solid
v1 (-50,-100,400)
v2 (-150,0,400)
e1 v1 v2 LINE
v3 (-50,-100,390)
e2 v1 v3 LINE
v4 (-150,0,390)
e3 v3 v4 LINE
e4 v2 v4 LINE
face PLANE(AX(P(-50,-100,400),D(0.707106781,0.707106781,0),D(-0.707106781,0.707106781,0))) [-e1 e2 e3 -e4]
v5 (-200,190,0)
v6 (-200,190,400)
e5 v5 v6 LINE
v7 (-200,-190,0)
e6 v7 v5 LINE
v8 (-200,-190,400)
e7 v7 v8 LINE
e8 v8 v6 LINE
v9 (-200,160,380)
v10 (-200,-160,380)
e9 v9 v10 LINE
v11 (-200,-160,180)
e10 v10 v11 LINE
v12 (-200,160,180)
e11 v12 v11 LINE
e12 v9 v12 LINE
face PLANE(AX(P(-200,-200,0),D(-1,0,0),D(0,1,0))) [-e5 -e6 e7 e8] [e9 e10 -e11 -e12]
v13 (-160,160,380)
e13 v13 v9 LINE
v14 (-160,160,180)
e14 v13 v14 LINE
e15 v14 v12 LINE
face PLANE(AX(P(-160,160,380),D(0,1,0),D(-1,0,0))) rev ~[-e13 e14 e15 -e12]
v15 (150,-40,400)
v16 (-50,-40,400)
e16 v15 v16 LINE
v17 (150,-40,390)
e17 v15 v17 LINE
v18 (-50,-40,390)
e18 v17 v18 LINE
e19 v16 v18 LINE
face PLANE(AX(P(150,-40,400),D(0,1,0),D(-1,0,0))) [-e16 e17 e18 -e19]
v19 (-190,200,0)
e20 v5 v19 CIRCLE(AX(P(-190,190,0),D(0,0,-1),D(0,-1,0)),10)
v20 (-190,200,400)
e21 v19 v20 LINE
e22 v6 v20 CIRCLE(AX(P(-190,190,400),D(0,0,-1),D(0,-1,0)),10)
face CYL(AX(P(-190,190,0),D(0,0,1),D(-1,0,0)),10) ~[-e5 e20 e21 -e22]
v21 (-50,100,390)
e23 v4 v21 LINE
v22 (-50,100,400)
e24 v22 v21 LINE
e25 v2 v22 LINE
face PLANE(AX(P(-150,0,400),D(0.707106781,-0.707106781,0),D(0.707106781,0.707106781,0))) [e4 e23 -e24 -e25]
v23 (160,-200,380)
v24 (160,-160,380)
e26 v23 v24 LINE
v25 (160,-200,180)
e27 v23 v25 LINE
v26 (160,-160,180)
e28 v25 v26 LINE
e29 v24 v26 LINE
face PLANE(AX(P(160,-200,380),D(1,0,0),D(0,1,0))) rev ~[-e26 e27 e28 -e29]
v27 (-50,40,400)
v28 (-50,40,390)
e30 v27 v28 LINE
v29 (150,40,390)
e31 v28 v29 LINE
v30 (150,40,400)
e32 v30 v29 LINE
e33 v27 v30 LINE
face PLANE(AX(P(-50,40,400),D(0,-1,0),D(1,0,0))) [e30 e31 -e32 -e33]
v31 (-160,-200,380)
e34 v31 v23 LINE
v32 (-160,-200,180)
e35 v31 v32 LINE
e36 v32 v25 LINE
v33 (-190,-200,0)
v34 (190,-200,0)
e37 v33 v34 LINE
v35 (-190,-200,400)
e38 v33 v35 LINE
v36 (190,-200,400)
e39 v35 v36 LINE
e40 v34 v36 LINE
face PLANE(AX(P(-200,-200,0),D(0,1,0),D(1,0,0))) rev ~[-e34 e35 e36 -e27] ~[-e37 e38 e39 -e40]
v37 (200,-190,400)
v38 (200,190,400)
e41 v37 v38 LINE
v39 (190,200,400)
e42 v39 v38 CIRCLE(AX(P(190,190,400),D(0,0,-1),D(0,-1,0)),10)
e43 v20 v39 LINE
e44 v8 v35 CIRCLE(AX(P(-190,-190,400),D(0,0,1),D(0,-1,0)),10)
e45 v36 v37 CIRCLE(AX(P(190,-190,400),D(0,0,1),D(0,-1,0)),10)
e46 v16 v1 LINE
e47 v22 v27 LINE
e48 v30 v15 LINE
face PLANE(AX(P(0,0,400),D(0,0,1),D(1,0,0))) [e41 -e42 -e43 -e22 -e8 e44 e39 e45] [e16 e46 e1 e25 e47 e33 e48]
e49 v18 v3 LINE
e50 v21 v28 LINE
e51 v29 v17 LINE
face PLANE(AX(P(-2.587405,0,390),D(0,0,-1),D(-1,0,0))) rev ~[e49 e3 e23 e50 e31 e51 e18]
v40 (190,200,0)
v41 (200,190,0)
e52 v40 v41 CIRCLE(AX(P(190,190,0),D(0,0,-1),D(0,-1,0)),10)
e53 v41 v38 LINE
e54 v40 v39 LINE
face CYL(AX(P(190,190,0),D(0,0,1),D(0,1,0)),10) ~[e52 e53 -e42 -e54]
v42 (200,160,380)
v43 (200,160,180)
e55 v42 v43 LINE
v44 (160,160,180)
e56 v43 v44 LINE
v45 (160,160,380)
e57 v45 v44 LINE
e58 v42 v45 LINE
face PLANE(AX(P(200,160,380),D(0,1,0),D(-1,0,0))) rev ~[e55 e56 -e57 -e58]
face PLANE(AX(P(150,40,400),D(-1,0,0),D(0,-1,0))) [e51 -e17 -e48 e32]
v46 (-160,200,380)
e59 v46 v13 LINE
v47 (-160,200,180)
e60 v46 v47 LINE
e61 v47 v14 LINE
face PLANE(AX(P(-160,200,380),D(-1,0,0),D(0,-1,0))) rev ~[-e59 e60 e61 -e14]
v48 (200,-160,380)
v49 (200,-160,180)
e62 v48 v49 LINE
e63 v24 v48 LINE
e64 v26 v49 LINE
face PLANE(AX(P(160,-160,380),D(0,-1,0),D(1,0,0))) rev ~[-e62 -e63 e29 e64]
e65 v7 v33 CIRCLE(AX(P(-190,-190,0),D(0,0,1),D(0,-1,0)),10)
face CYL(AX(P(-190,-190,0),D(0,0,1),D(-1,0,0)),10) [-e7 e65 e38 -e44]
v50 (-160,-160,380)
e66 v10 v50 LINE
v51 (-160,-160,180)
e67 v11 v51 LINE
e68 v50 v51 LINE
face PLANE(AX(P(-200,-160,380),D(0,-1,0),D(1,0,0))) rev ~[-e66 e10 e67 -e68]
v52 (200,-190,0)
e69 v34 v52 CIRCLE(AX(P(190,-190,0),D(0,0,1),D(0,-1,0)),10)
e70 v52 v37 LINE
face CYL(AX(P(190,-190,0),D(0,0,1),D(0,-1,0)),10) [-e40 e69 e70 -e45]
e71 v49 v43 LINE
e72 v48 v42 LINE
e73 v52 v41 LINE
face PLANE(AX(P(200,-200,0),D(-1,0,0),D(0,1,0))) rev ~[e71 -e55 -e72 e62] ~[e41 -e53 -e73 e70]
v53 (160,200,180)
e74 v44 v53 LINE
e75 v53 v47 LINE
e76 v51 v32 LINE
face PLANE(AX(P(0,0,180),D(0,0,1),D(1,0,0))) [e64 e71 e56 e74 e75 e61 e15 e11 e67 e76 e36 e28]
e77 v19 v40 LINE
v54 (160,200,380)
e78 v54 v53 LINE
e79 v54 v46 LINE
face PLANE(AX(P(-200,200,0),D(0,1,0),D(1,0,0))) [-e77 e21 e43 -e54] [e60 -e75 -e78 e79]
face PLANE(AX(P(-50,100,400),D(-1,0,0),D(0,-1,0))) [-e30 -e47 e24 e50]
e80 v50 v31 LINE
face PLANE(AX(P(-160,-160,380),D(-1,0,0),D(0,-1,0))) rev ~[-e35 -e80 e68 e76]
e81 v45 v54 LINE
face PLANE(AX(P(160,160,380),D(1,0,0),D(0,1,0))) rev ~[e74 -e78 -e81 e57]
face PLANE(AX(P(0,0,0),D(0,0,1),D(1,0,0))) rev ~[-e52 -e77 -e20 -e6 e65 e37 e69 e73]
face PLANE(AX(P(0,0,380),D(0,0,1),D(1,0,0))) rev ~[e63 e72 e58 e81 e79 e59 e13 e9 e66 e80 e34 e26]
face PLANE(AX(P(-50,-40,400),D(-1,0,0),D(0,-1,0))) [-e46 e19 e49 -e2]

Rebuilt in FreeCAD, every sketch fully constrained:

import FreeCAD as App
import Part
import Sketcher
from FreeCAD import Vector
Q = App.Units.Quantity


def edges_at(feature, points):
    """Names of the edges that pass closest to the given points."""
    edges = feature.Shape.Edges
    near = lambda p: min(range(len(edges)), key=lambda i: edges[i].distToShape(Part.Vertex(*p))[0])
    return sorted({f"Edge{near(p) + 1}" for p in points})


def add_polygon(sketch, points):
    """Adds a closed chain of lines whose ends are joined by coincident constraints."""
    first, n = sketch.GeometryCount, len(points)
    for a, b in zip(points, points[1:] + points[:1]):
        sketch.addGeometry(Part.LineSegment(App.Vector(*a, 0), App.Vector(*b, 0)), False)
    for i in range(n):
        sketch.addConstraint(Sketcher.Constraint("Coincident", first + i, 2, first + (i + 1) % n, 1))

doc = App.newDocument("Part")
body = doc.addObject("PartDesign::Body", "Body")

sketch1 = body.newObject("Sketcher::SketchObject", "Sketch")
sketch1.AttachmentSupport = (doc.getObject("XY_Plane"), [""])
sketch1.MapMode = "FlatFace"
add_polygon(sketch1, [(-200, 200), (-200, -200), (200, -200), (200, 200)])
sketch1.addConstraint(Sketcher.Constraint("Vertical", 0))
sketch1.addConstraint(Sketcher.Constraint("Horizontal", 1))
sketch1.addConstraint(Sketcher.Constraint("Vertical", 2))
sketch1.addConstraint(Sketcher.Constraint("Horizontal", 3))
sketch1.addConstraint(Sketcher.Constraint("Symmetric", 0, 2, 2, 2, -1, 1))
sketch1.addConstraint(Sketcher.Constraint("Equal", 3, 0))
sketch1.addConstraint(Sketcher.Constraint("DistanceX", 1, 1, 1, 2, Q("400 mm")))
pad1 = body.newObject("PartDesign::Pad", "Pad")
pad1.Profile = sketch1
pad1.Length = 400

sketch2 = body.newObject("Sketcher::SketchObject", "Sketch001")
sketch2.AttachmentSupport = (doc.getObject("XY_Plane"), [""])
sketch2.MapMode = "FlatFace"
sketch2.AttachmentOffset = App.Placement(Vector(0, 0, 380), App.Rotation())
add_polygon(sketch2, [(160, 200), (-160, 200), (-160, 160), (-200, 160), (-200, -160), (-160, -160), (-160, -200), (160, -200), (160, -160), (200, -160), (200, 160), (160, 160)])
sketch2.addConstraint(Sketcher.Constraint("Horizontal", 0))
sketch2.addConstraint(Sketcher.Constraint("Vertical", 1))
sketch2.addConstraint(Sketcher.Constraint("Horizontal", 2))
sketch2.addConstraint(Sketcher.Constraint("Vertical", 3))
sketch2.addConstraint(Sketcher.Constraint("Horizontal", 4))
sketch2.addConstraint(Sketcher.Constraint("Vertical", 5))
sketch2.addConstraint(Sketcher.Constraint("Horizontal", 6))
sketch2.addConstraint(Sketcher.Constraint("Vertical", 7))
sketch2.addConstraint(Sketcher.Constraint("Horizontal", 8))
sketch2.addConstraint(Sketcher.Constraint("Vertical", 9))
sketch2.addConstraint(Sketcher.Constraint("Horizontal", 10))
sketch2.addConstraint(Sketcher.Constraint("Vertical", 11))
sketch2.addConstraint(Sketcher.Constraint("Symmetric", 0, 2, 6, 2, -1, 1))
sketch2.addConstraint(Sketcher.Constraint("Symmetric", 2, 2, 8, 2, -1, 1))
sketch2.addConstraint(Sketcher.Constraint("Symmetric", 4, 2, 10, 2, -1, 1))
sketch2.addConstraint(Sketcher.Constraint("Symmetric", 4, 2, 7, 2, -2))
sketch2.addConstraint(Sketcher.Constraint("Equal", 10, 1))
sketch2.addConstraint(Sketcher.Constraint("Equal", 6, 3))
sketch2.addConstraint(Sketcher.Constraint("DistanceX", 0, 2, 0, 1, Q("320 mm")))
sketch2.addConstraint(Sketcher.Constraint("DistanceX", 2, 2, 2, 1, Q("40 mm")))
pocket1 = body.newObject("PartDesign::Pocket", "Pocket")
pocket1.Profile = sketch2
pocket1.Length = 200

sketch3 = body.newObject("Sketcher::SketchObject", "Sketch002")
sketch3.AttachmentSupport = (doc.getObject("XY_Plane"), [""])
sketch3.MapMode = "FlatFace"
sketch3.AttachmentOffset = App.Placement(Vector(0, 0, 400), App.Rotation())
add_polygon(sketch3, [(-50, 100), (-150, 0), (-50, -100), (-50, -40), (150, -40), (150, 40), (-50, 40)])
sketch3.addConstraint(Sketcher.Constraint("Vertical", 2))
sketch3.addConstraint(Sketcher.Constraint("Horizontal", 3))
sketch3.addConstraint(Sketcher.Constraint("Vertical", 4))
sketch3.addConstraint(Sketcher.Constraint("Horizontal", 5))
sketch3.addConstraint(Sketcher.Constraint("Vertical", 6))
sketch3.addConstraint(Sketcher.Constraint("Symmetric", 2, 2, 5, 2, -1))
sketch3.addConstraint(Sketcher.Constraint("PointOnObject", 0, 2, -1))
sketch3.addConstraint(Sketcher.Constraint("Perpendicular", 0, 1))
sketch3.addConstraint(Sketcher.Constraint("Equal", 2, 6))
sketch3.addConstraint(Sketcher.Constraint("DistanceX", 3, 1, 3, 2, Q("200 mm")))
sketch3.addConstraint(Sketcher.Constraint("DistanceY", 2, 1, 2, 2, Q("60 mm")))
sketch3.addConstraint(Sketcher.Constraint("DistanceY", 4, 1, 4, 2, Q("80 mm")))
sketch3.addConstraint(Sketcher.Constraint("DistanceX", 0, 2, -1, 1, Q("150 mm")))
pocket2 = body.newObject("PartDesign::Pocket", "Pocket001")
pocket2.Profile = sketch3
pocket2.Length = 10
doc.recompute()

fillet = body.newObject("PartDesign::Fillet", "Fillet")
fillet.Base = (pocket2, edges_at(pocket2, [
    (200, -200, 200),
    (-200, -200, 200),
    (-200, 200, 200),
    (200, 200, 200),
]))
fillet.Radius = 10

doc.recompute()
